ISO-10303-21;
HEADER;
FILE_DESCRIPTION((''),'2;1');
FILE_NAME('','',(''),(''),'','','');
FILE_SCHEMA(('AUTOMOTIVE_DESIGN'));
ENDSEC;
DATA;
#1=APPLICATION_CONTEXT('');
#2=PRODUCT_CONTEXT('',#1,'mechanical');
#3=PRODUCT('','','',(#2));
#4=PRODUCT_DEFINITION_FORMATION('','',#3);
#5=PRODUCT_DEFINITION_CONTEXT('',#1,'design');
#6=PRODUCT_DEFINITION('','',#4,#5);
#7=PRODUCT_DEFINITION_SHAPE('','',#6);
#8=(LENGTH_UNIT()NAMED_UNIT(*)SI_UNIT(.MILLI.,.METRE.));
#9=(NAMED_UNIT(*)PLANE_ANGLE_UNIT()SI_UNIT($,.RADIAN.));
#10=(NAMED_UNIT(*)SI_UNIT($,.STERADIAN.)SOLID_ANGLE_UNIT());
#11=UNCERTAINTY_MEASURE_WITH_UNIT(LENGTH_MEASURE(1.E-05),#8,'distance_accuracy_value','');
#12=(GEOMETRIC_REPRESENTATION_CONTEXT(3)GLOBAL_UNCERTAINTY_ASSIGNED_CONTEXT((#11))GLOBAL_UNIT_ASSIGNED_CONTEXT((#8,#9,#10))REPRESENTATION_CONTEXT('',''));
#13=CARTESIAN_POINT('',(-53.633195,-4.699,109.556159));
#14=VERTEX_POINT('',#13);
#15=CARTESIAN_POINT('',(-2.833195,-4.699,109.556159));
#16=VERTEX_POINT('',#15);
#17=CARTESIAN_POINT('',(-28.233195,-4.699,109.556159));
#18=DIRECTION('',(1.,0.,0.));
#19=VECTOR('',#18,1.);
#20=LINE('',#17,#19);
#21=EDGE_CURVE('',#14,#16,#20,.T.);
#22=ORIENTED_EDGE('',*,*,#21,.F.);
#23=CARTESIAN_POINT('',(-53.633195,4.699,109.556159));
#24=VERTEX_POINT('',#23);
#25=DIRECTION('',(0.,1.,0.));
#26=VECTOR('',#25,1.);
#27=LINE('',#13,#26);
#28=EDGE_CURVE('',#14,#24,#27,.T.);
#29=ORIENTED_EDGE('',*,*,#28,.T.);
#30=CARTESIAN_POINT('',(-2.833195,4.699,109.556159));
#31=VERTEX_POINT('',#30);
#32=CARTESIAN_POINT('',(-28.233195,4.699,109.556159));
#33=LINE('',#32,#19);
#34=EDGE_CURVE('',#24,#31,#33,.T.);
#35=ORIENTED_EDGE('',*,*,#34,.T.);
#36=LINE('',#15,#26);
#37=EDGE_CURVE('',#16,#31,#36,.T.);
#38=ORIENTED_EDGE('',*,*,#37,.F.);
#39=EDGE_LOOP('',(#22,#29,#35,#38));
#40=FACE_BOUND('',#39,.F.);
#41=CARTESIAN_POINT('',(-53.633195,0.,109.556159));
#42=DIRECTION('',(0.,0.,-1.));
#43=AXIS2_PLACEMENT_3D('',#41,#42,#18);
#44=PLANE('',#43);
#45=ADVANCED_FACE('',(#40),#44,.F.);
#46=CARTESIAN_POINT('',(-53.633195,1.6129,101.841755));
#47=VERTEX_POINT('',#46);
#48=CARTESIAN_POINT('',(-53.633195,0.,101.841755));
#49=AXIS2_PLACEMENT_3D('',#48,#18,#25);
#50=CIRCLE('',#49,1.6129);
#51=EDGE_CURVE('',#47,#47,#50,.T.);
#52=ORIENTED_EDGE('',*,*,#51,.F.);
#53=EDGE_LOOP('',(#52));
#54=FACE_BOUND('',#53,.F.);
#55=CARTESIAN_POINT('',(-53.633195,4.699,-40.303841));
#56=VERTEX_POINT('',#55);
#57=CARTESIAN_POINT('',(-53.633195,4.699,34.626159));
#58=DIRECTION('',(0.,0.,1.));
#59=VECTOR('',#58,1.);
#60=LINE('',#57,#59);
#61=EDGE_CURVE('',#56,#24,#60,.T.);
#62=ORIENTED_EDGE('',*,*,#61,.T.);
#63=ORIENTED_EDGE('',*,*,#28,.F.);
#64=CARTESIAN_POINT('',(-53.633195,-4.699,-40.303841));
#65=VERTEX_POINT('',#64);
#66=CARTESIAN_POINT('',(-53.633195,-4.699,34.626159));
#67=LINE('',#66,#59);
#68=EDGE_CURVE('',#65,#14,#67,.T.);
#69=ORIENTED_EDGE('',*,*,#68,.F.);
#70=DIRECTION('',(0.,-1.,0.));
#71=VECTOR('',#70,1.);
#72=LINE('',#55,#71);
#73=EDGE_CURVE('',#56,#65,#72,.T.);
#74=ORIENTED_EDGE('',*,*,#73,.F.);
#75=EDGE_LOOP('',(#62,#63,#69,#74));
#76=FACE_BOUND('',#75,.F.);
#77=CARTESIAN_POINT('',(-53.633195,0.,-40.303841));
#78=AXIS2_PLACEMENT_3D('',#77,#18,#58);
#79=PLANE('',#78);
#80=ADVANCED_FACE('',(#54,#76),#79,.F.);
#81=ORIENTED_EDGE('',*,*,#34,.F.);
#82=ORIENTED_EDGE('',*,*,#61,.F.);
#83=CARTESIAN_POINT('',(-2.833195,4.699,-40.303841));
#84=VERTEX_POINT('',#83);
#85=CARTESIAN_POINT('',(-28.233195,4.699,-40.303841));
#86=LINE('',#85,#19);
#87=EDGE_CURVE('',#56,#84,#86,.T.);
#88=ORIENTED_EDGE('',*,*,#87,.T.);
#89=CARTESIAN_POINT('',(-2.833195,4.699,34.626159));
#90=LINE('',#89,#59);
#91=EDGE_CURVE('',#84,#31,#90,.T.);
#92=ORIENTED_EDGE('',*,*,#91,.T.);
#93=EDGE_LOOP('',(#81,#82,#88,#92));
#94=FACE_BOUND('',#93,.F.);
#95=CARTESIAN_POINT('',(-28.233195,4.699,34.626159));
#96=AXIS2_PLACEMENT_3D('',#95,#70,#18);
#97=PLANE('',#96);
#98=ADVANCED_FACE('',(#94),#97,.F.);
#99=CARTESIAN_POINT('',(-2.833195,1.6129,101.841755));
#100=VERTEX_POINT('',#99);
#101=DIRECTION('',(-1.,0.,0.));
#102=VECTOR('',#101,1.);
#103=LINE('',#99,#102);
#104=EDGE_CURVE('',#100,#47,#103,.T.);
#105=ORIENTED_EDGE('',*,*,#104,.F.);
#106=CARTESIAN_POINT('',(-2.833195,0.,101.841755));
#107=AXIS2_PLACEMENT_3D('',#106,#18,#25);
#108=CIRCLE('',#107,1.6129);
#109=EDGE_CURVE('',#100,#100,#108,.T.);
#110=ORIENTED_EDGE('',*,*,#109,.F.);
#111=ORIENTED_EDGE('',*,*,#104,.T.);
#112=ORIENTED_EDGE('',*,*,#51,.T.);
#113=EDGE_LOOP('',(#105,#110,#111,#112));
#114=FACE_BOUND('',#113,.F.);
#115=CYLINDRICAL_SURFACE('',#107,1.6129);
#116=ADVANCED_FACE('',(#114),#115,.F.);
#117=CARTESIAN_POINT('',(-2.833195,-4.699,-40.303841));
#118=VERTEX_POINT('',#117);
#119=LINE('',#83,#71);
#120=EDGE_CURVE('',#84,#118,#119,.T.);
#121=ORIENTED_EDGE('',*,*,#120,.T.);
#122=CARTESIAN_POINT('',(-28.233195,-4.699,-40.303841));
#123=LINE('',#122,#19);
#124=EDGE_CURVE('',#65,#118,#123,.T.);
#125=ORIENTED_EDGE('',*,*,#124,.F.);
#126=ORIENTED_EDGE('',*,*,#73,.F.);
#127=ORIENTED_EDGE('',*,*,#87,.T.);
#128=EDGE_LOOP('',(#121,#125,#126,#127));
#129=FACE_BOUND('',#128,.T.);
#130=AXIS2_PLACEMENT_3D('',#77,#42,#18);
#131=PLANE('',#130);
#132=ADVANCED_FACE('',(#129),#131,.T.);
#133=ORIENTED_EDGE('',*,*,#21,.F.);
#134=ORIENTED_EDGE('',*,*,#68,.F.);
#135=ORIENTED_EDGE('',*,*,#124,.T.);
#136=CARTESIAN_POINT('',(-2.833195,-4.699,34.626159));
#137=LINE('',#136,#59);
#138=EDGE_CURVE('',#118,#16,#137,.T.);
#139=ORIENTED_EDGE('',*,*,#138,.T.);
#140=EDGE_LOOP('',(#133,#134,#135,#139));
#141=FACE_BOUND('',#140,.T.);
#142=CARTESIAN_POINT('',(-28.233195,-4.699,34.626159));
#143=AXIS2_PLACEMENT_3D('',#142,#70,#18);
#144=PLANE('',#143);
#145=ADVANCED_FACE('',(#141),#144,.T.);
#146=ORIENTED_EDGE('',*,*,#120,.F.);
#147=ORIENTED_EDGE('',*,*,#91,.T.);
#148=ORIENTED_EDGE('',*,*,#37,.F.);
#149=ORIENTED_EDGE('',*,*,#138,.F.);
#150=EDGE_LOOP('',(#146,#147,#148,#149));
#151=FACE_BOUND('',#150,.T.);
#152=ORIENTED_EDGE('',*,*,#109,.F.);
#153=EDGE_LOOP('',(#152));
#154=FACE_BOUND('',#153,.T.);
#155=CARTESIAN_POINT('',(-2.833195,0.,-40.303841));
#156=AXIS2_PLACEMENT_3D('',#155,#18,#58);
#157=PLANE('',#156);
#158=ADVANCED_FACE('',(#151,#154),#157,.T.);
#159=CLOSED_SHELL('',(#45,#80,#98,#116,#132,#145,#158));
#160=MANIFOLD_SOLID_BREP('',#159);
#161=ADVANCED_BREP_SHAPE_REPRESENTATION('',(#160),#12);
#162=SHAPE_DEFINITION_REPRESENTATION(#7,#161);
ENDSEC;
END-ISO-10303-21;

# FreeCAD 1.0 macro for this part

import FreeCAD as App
import Part
import Sketcher
from FreeCAD import Vector
Q = App.Units.Quantity


def add_polygon(sketch, points):
    """Adds a closed chain of lines whose ends are joined by coincident constraints."""
    first, n = sketch.GeometryCount, len(points)
    for a, b in zip(points, points[1:] + points[:1]):
        sketch.addGeometry(Part.LineSegment(App.Vector(*a, 0), App.Vector(*b, 0)), False)
    for i in range(n):
        sketch.addConstraint(Sketcher.Constraint("Coincident", first + i, 2, first + (i + 1) % n, 1))

doc = App.newDocument("Part")
body = doc.addObject("PartDesign::Body", "Body")

# Sketch on XZ plane
sketch1 = body.newObject("Sketcher::SketchObject", "Sketch")
sketch1.AttachmentSupport = (doc.getObject("XZ_Plane"), [""])
sketch1.MapMode = "FlatFace"
add_polygon(sketch1, [(-53.633195, 109.556159), (-53.633195, -40.303841), (-2.833195, -40.303841), (-2.833195, 109.556159)])  # lines 0-3
sketch1.addConstraint([
    Sketcher.Constraint("Vertical", 0),
    Sketcher.Constraint("Horizontal", 1),
    Sketcher.Constraint("Vertical", 2),
    Sketcher.Constraint("Horizontal", 3),
    Sketcher.Constraint("DistanceX", 1, 1, 1, 2, Q("2 in")),
    Sketcher.Constraint("DistanceY", 0, 2, 0, 1, Q("5.9 in")),
    Sketcher.Constraint("DistanceY", 0, 2, -1, 1, 40.303841),
    Sketcher.Constraint("DistanceX", 0, 2, -1, 1, 53.633195),
])
pad1 = body.newObject("PartDesign::Pad", "Pad")
pad1.Profile = sketch1
pad1.Length = Q("0.37 in")
pad1.Midplane = True

# Sketch on YZ plane
sketch2 = body.newObject("Sketcher::SketchObject", "Sketch001")
sketch2.AttachmentSupport = (doc.getObject("YZ_Plane"), [""])
sketch2.MapMode = "FlatFace"
sketch2.AttachmentOffset = App.Placement(Vector(0, 0, -2.833195), App.Rotation())
sketch2.addGeometry(Part.Circle(Vector(0, 101.841755, 0), Vector(0, 0, 1), 1.6129), False)
sketch2.addConstraint([
    Sketcher.Constraint("PointOnObject", 0, 3, -2),
    Sketcher.Constraint("Diameter", 0, Q("0.127 in")),
    Sketcher.Constraint("DistanceY", -1, 1, 0, 3, 101.841755),
])
pocket1 = body.newObject("PartDesign::Pocket", "Pocket")
pocket1.Profile = sketch2
pocket1.Length = Q("3.52 in")

doc.recompute()
